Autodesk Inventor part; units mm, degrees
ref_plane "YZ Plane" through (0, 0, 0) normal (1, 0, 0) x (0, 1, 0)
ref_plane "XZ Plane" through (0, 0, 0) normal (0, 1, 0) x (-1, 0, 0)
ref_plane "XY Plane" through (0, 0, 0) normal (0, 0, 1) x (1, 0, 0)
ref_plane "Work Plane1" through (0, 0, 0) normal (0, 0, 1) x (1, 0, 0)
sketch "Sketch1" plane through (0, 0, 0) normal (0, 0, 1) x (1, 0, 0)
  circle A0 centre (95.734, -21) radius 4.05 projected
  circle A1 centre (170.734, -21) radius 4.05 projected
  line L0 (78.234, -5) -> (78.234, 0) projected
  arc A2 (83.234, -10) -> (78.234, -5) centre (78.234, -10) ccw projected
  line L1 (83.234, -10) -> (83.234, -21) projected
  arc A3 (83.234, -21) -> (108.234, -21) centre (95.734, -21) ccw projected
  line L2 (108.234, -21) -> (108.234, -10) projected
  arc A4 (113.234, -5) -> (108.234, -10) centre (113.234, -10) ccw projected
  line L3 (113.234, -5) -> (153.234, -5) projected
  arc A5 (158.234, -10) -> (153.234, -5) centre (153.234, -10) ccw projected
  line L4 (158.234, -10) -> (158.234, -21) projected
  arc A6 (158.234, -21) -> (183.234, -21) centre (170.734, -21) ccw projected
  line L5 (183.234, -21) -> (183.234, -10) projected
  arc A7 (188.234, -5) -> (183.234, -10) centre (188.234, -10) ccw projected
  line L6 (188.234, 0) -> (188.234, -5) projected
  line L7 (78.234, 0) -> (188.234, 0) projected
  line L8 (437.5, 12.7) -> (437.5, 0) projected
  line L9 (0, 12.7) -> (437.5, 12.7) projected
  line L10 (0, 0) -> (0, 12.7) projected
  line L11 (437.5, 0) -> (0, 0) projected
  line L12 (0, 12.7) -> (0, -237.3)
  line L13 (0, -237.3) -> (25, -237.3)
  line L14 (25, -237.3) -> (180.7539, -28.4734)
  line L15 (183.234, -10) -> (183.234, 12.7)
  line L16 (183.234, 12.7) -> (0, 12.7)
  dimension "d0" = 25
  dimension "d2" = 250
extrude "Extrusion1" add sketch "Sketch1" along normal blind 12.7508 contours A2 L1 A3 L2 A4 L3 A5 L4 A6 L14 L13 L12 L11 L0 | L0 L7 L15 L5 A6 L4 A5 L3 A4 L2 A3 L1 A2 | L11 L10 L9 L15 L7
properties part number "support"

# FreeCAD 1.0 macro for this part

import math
import FreeCAD as App
import Part
import Sketcher
from FreeCAD import Vector
Q = App.Units.Quantity

doc = App.newDocument("Part")
body = doc.addObject("PartDesign::Body", "Body")

# Sketch on XY plane
sketch1 = body.newObject("Sketcher::SketchObject", "Sketch")
sketch1.AttachmentSupport = (doc.getObject("XY_Plane"), [""])
sketch1.MapMode = "FlatFace"
sketch1.addGeometry(Part.LineSegment(Vector(25, -237.3, 0), Vector(180.7539, -28.4734, 0)), False)
sketch1.addGeometry(Part.ArcOfCircle(Part.Circle(Vector(170.734, -21, 0), Vector(0, 0, 1), 12.5), math.radians(-36.717628), math.radians(0)), False)
sketch1.addGeometry(Part.LineSegment(Vector(183.234, -21, 0), Vector(183.234, 12.7, 0)), False)
sketch1.addGeometry(Part.LineSegment(Vector(183.234, 12.7, 0), Vector(0, 12.7, 0)), False)
sketch1.addGeometry(Part.LineSegment(Vector(0, 12.7, 0), Vector(0, -237.3, 0)), False)
sketch1.addGeometry(Part.LineSegment(Vector(0, -237.3, 0), Vector(25, -237.3, 0)), False)
sketch1.addGeometry(Part.Circle(Vector(95.734, -21, 0), Vector(0, 0, 1), 4.05), False)
sketch1.addGeometry(Part.Circle(Vector(170.734, -21, 0), Vector(0, 0, 1), 4.05), False)
sketch1.addConstraint(Sketcher.Constraint("Tangent", 0, 2, 1, 1))
sketch1.addConstraint(Sketcher.Constraint("Tangent", 1, 2, 2, 1))
sketch1.addConstraint(Sketcher.Constraint("Coincident", 2, 2, 3, 1))
sketch1.addConstraint(Sketcher.Constraint("Coincident", 3, 2, 4, 1))
sketch1.addConstraint(Sketcher.Constraint("Coincident", 4, 2, 5, 1))
sketch1.addConstraint(Sketcher.Constraint("Coincident", 5, 2, 0, 1))
sketch1.addConstraint(Sketcher.Constraint("Vertical", 2))
sketch1.addConstraint(Sketcher.Constraint("Horizontal", 3))
sketch1.addConstraint(Sketcher.Constraint("Vertical", 4))
sketch1.addConstraint(Sketcher.Constraint("Horizontal", 5))
sketch1.addConstraint(Sketcher.Constraint("Coincident", 7, 3, 1, 3))
sketch1.addConstraint(Sketcher.Constraint("Equal", 6, 7))
sketch1.addConstraint(Sketcher.Constraint("PointOnObject", 3, 2, -2))
sketch1.addConstraint(Sketcher.Constraint("Horizontal", 1, 3, 6, 3))
sketch1.addConstraint(Sketcher.Constraint("Radius", 1, Q("12.5 mm")))
sketch1.addConstraint(Sketcher.Constraint("DistanceX", 5, 1, 5, 2, Q("25 mm")))
sketch1.addConstraint(Sketcher.Constraint("DistanceY", 4, 2, 4, 1, Q("250 mm")))
sketch1.addConstraint(Sketcher.Constraint("Diameter", 6, Q("8.1 mm")))
sketch1.addConstraint(Sketcher.Constraint("DistanceY", 2, 1, 2, 2, Q("33.7 mm")))
sketch1.addConstraint(Sketcher.Constraint("DistanceY", 1, 3, -1, 1, Q("21 mm")))
sketch1.addConstraint(Sketcher.Constraint("DistanceX", 6, 3, 1, 3, Q("75 mm")))
sketch1.addConstraint(Sketcher.Constraint("DistanceX", 3, 2, 3, 1, Q("183.234 mm")))
pad1 = body.newObject("PartDesign::Pad", "Pad")
pad1.Profile = sketch1
pad1.Length = 12.7508

doc.recompute()
